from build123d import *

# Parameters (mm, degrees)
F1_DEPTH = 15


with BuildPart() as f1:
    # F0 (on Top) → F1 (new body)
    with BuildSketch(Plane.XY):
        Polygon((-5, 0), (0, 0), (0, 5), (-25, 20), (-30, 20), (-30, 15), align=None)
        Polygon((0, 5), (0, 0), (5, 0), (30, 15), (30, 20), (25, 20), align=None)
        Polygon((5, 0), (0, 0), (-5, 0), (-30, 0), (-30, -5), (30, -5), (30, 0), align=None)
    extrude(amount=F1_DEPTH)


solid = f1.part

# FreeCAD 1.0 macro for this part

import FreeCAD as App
import Part
import Sketcher
Q = App.Units.Quantity

doc = App.newDocument("Part")
body = doc.addObject("PartDesign::Body", "Body")

sketch1 = doc.addObject("Sketcher::SketchObject", "Sketch")
body.addObject(sketch1)
sketch1.AttachmentSupport = (doc.XY_Plane, [""])
sketch1.MapMode = "FlatFace"
sketch1.addGeometry([
    Part.LineSegment(App.Vector(5, 0, 0), App.Vector(30, 15, 0)),
    Part.LineSegment(App.Vector(30, 15, 0), App.Vector(30, 20, 0)),
    Part.LineSegment(App.Vector(30, 20, 0), App.Vector(25, 20, 0)),
    Part.LineSegment(App.Vector(25, 20, 0), App.Vector(0, 5, 0)),
    Part.LineSegment(App.Vector(0, 5, 0), App.Vector(-25, 20, 0)),
    Part.LineSegment(App.Vector(-25, 20, 0), App.Vector(-30, 20, 0)),
    Part.LineSegment(App.Vector(-30, 20, 0), App.Vector(-30, 15, 0)),
    Part.LineSegment(App.Vector(-30, 15, 0), App.Vector(-5, 0, 0)),
    Part.LineSegment(App.Vector(-5, 0, 0), App.Vector(-30, 0, 0)),
    Part.LineSegment(App.Vector(-30, 0, 0), App.Vector(-30, -5, 0)),
    Part.LineSegment(App.Vector(-30, -5, 0), App.Vector(30, -5, 0)),
    Part.LineSegment(App.Vector(30, -5, 0), App.Vector(30, 0, 0)),
    Part.LineSegment(App.Vector(30, 0, 0), App.Vector(5, 0, 0)),
], False)
sketch1.addConstraint([
    Sketcher.Constraint("Coincident", 0, 2, 1, 1),
    Sketcher.Constraint("Coincident", 1, 2, 2, 1),
    Sketcher.Constraint("Coincident", 2, 2, 3, 1),
    Sketcher.Constraint("Coincident", 3, 2, 4, 1),
    Sketcher.Constraint("Coincident", 4, 2, 5, 1),
    Sketcher.Constraint("Coincident", 5, 2, 6, 1),
    Sketcher.Constraint("Coincident", 6, 2, 7, 1),
    Sketcher.Constraint("Coincident", 7, 2, 8, 1),
    Sketcher.Constraint("Coincident", 8, 2, 9, 1),
    Sketcher.Constraint("Coincident", 9, 2, 10, 1),
    Sketcher.Constraint("Coincident", 10, 2, 11, 1),
    Sketcher.Constraint("Coincident", 11, 2, 12, 1),
    Sketcher.Constraint("Coincident", 12, 2, 0, 1),
    Sketcher.Constraint("Vertical", 1),
    Sketcher.Constraint("Horizontal", 2),
    Sketcher.Constraint("Horizontal", 5),
    Sketcher.Constraint("Vertical", 6),
    Sketcher.Constraint("Horizontal", 8),
    Sketcher.Constraint("Vertical", 9),
    Sketcher.Constraint("Horizontal", 10),
    Sketcher.Constraint("Vertical", 11),
    Sketcher.Constraint("Horizontal", 12),
    Sketcher.Constraint("Symmetric", 8, 2, 11, 2, -1, 1),
    Sketcher.Constraint("Symmetric", 2, 2, 4, 2, -2),
    Sketcher.Constraint("Symmetric", 0, 2, 6, 2, -2),
    Sketcher.Constraint("Symmetric", 7, 2, 12, 2, -2),
    Sketcher.Constraint("PointOnObject", 3, 2, -2),
    Sketcher.Constraint("Parallel", 0, 3),
    Sketcher.Constraint("Vertical", 6, 2, 8, 2),
    Sketcher.Constraint("Equal", 5, 1),
    Sketcher.Constraint("Equal", 6, 9),
    Sketcher.Constraint("Equal", 0, 3),
    Sketcher.Constraint("DistanceX", 2, 2, 2, 1, Q("5 mm")),
    Sketcher.Constraint("DistanceX", 8, 2, 8, 1, Q("25 mm")),
    Sketcher.Constraint("DistanceY", -1, 1, 0, 2, Q("15 mm")),
])
pad1 = doc.addObject("PartDesign::Pad", "Pad")
body.addObject(pad1)
pad1.Profile = sketch1
pad1.Length = 15

doc.recompute()
